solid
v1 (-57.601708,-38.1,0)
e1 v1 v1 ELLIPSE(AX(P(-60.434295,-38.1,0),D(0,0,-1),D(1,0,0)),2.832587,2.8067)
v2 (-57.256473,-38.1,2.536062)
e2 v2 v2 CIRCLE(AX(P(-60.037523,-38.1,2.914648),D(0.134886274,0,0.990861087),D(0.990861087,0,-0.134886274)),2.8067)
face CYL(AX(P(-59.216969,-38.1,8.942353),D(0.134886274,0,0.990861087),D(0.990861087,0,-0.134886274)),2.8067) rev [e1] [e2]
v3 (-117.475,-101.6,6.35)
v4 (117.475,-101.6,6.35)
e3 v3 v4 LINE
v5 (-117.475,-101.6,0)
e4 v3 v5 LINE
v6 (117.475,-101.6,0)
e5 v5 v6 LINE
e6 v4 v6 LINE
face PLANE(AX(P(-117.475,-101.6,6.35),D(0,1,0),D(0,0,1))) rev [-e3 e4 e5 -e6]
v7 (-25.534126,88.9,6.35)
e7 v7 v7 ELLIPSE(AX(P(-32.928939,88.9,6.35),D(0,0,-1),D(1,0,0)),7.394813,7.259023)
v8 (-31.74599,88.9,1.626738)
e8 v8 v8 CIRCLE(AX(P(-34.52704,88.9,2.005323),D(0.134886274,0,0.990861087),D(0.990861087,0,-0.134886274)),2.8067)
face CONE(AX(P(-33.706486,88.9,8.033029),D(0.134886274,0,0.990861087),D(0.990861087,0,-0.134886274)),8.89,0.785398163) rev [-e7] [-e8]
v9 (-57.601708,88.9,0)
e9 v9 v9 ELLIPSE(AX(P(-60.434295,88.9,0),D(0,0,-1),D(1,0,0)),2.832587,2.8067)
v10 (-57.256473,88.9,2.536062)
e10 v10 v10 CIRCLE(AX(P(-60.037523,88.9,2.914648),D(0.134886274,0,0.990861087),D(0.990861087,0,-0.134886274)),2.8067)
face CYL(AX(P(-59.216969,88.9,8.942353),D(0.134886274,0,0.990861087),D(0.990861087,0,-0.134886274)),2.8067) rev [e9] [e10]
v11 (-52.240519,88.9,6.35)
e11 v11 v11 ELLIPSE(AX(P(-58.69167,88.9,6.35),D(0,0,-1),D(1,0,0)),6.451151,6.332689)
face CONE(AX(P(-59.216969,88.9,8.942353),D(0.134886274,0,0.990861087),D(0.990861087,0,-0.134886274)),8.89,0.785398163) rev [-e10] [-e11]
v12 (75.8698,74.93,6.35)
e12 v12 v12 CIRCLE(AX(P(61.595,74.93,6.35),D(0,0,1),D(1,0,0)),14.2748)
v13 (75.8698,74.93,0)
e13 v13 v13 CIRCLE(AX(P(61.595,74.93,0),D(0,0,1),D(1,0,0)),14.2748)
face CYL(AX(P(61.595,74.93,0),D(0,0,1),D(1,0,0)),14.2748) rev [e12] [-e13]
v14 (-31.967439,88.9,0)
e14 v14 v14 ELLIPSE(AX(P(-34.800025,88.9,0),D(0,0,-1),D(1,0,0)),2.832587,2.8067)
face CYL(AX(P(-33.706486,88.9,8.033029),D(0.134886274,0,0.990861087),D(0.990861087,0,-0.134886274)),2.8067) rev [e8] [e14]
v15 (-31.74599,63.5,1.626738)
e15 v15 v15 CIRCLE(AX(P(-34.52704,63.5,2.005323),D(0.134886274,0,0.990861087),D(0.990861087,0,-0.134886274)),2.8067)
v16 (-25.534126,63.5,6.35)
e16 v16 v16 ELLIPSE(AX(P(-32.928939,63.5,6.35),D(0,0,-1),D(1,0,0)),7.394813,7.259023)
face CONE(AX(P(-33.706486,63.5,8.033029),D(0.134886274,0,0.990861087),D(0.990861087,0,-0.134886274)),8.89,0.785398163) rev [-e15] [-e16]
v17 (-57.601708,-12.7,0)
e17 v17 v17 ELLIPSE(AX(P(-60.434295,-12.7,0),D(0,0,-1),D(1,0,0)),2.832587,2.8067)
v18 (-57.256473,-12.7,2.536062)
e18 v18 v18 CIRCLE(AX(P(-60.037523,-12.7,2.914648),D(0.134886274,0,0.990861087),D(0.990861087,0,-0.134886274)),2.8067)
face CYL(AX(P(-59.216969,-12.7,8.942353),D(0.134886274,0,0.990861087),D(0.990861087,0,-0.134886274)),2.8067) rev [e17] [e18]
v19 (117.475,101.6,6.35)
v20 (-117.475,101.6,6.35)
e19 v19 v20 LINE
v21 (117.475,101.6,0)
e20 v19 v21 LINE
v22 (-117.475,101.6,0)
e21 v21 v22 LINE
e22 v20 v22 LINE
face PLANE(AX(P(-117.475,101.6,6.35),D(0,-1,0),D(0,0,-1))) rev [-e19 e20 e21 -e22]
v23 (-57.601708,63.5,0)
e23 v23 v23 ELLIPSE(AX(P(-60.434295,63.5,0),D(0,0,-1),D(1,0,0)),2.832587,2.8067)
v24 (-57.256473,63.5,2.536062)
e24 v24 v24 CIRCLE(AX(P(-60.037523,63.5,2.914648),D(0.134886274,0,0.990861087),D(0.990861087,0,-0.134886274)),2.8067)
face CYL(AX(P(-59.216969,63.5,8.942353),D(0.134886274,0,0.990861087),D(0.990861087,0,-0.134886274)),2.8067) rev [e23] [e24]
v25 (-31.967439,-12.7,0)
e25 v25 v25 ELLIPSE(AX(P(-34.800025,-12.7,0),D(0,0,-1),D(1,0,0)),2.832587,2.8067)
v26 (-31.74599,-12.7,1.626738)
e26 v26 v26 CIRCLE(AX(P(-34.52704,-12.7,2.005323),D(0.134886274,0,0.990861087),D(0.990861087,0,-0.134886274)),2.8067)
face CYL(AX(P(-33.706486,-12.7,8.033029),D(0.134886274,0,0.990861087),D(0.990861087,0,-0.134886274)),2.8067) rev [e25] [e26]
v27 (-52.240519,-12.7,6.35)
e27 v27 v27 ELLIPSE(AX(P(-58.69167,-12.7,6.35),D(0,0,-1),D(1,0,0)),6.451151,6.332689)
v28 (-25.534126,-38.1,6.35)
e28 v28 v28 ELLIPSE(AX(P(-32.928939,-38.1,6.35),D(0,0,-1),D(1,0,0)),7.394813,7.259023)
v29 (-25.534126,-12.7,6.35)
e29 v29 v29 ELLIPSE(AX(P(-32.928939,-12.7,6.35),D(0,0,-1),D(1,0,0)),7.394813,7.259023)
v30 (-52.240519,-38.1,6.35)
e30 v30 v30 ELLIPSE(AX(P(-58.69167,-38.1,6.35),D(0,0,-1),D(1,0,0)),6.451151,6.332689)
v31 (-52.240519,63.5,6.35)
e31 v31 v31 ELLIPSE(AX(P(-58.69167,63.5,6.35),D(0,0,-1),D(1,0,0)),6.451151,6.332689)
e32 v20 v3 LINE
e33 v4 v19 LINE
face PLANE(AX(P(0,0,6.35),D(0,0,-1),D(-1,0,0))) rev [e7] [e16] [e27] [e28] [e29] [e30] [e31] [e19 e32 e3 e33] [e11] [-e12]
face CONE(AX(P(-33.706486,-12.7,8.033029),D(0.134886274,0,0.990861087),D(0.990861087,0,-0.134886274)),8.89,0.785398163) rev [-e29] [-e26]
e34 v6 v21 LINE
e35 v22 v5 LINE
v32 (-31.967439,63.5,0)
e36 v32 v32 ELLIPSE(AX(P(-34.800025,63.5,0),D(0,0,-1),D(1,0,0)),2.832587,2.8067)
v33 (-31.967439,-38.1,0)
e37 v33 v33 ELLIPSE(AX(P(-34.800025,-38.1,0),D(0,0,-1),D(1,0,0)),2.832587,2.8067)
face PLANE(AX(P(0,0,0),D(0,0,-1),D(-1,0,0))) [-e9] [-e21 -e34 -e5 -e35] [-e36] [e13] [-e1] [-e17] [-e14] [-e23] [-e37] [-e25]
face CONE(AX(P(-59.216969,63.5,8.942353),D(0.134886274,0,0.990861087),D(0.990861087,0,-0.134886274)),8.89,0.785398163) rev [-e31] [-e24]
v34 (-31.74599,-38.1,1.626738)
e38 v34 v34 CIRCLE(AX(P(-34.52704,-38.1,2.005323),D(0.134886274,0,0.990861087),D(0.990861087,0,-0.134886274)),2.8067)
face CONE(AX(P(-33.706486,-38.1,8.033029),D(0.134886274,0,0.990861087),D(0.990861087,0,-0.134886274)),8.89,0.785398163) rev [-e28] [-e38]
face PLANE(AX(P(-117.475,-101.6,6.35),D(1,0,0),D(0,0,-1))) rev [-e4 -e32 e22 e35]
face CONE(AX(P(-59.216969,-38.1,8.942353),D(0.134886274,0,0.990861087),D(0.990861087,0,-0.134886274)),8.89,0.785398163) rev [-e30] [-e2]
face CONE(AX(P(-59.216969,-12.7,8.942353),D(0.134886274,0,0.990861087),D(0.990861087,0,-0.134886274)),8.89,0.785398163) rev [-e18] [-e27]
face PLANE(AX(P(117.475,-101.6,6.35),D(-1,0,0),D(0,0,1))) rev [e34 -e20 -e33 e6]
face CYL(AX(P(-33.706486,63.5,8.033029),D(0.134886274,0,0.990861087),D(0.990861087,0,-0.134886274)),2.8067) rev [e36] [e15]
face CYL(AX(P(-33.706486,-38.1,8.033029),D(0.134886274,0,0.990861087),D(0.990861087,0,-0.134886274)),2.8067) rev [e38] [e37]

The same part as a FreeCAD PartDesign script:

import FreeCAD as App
import Part
import Sketcher
from FreeCAD import Vector
Q = App.Units.Quantity


def add_polygon(sketch, points):
    """Adds a closed chain of lines whose ends are joined by coincident constraints."""
    first, n = sketch.GeometryCount, len(points)
    for a, b in zip(points, points[1:] + points[:1]):
        sketch.addGeometry(Part.LineSegment(App.Vector(*a, 0), App.Vector(*b, 0)), False)
    for i in range(n):
        sketch.addConstraint(Sketcher.Constraint("Coincident", first + i, 2, first + (i + 1) % n, 1))

doc = App.newDocument("Part")
body = doc.addObject("PartDesign::Body", "Body")

# Sketch on XY plane
sketch1 = body.newObject("Sketcher::SketchObject", "Sketch")
sketch1.AttachmentSupport = (doc.getObject("XY_Plane"), [""])
sketch1.MapMode = "FlatFace"
add_polygon(sketch1, [(-117, 102), (-117, -102), (117, -102), (117, 102)])  # lines 0-3
sketch1.addConstraint(Sketcher.Constraint("Vertical", 0))
sketch1.addConstraint(Sketcher.Constraint("Horizontal", 1))
sketch1.addConstraint(Sketcher.Constraint("Vertical", 2))
sketch1.addConstraint(Sketcher.Constraint("Horizontal", 3))
sketch1.addConstraint(Sketcher.Constraint("Symmetric", 0, 2, 2, 2, -1, 1))
sketch1.addConstraint(Sketcher.Constraint("DistanceY", 0, 2, 0, 1, Q("8 in")))
sketch1.addConstraint(Sketcher.Constraint("DistanceX", 1, 1, 1, 2, Q("9.25 in")))
pad1 = body.newObject("PartDesign::Pad", "Pad")
pad1.Profile = sketch1
pad1.Length = Q("0.25 in")

# Sketch on XY plane
sketch2 = body.newObject("Sketcher::SketchObject", "Sketch001")
sketch2.AttachmentSupport = (doc.getObject("XY_Plane"), [""])
sketch2.MapMode = "FlatFace"
sketch2.AttachmentOffset = App.Placement(Vector(0, 0, 0.25 * 25.4), App.Rotation())
sketch2.addGeometry(Part.Circle(Vector(62, 75, 0), Vector(0, 0, 1), 14), False)
sketch2.addConstraint(Sketcher.Constraint("Diameter", 0, Q("1.124 in")))
sketch2.addConstraint(Sketcher.Constraint("DistanceY", -1, 1, 0, 3, Q("2.95 in")))
sketch2.addConstraint(Sketcher.Constraint("DistanceX", -1, 1, 0, 3, Q("2.425 in")))
pocket1 = body.newObject("PartDesign::Pocket", "Pocket")
pocket1.Profile = sketch2
pocket1.Type = "ThroughAll"

# Sketch on an angled plane
sketch3 = body.newObject("Sketcher::SketchObject", "Sketch002")
sketch3.Placement = App.Placement(Vector(0.117766, 0, 0.865094), App.Rotation(Vector(-0.990861087, 0, 0.134886274), Vector(0, -1.000000001, 0), Vector(0.134886274, 0, 0.990861087), "ZXY"))
sketch3.addGeometry(Part.Circle(Vector(59.9, 38.1, 0), Vector(0, 0, 1), 2.8), False)
sketch3.addGeometry(Part.Circle(Vector(59.9, 12.7, 0), Vector(0, 0, 1), 2.8), False)
sketch3.addGeometry(Part.Circle(Vector(59.9, -63.5, 0), Vector(0, 0, 1), 2.8), False)
sketch3.addGeometry(Part.Circle(Vector(59.9, -88.9, 0), Vector(0, 0, 1), 2.8), False)
sketch3.addConstraint(Sketcher.Constraint("Equal", 0, 1))
sketch3.addConstraint(Sketcher.Constraint("Equal", 1, 2))
sketch3.addConstraint(Sketcher.Constraint("Equal", 2, 3))
sketch3.addConstraint(Sketcher.Constraint("Vertical", 0, 3, 1, 3))
sketch3.addConstraint(Sketcher.Constraint("Vertical", 1, 3, 2, 3))
sketch3.addConstraint(Sketcher.Constraint("Vertical", 2, 3, 3, 3))
sketch3.addConstraint(Sketcher.Constraint("Diameter", 0, Q("0.221 in")))
sketch3.addConstraint(Sketcher.Constraint("DistanceY", 1, 3, 0, 3, Q("1 in")))
sketch3.addConstraint(Sketcher.Constraint("DistanceY", 2, 3, 1, 3, Q("3 in")))
sketch3.addConstraint(Sketcher.Constraint("DistanceY", 3, 3, 2, 3, Q("1 in")))
sketch3.addConstraint(Sketcher.Constraint("DistanceY", -1, 1, 0, 3, Q("1.5 in")))
sketch3.addConstraint(Sketcher.Constraint("DistanceX", -1, 1, 0, 3, 59.881991))
doc.recompute()
hole = body.newObject("PartDesign::Hole", "Hole")
hole.Profile = sketch3
hole.ThreadType = "None"
hole.Diameter = Q("0.221 in")
hole.DepthType = "ThroughAll"
hole.HoleCutType = "Countersink"
hole.HoleCutDiameter = Q("0.7 in")
hole.HoleCutCountersinkAngle = 90

# Sketch on an angled plane
sketch4 = body.newObject("Sketcher::SketchObject", "Sketch003")
sketch4.Placement = App.Placement(Vector(0.460377, 0, 3.381881), App.Rotation(Vector(-0.990861087, 0, 0.134886274), Vector(0, -1.000000001, 0), Vector(0.134886274, 0, 0.990861087), "ZXY"))
sketch4.addGeometry(Part.Circle(Vector(34.5, 12.7, 0), Vector(0, 0, 1), 2.8), False)
sketch4.addGeometry(Part.Circle(Vector(34.5, 38.1, 0), Vector(0, 0, 1), 2.8), False)
sketch4.addGeometry(Part.Circle(Vector(34.5, -63.5, 0), Vector(0, 0, 1), 2.8), False)
sketch4.addGeometry(Part.Circle(Vector(34.5, -88.9, 0), Vector(0, 0, 1), 2.8), False)
sketch4.addConstraint(Sketcher.Constraint("Equal", 0, 1))
sketch4.addConstraint(Sketcher.Constraint("Equal", 1, 2))
sketch4.addConstraint(Sketcher.Constraint("Equal", 2, 3))
sketch4.addConstraint(Sketcher.Constraint("Vertical", 0, 3, 1, 3))
sketch4.addConstraint(Sketcher.Constraint("Vertical", 1, 3, 2, 3))
sketch4.addConstraint(Sketcher.Constraint("Vertical", 2, 3, 3, 3))
sketch4.addConstraint(Sketcher.Constraint("Diameter", 0, Q("0.221 in")))
sketch4.addConstraint(Sketcher.Constraint("DistanceY", 0, 3, 1, 3, Q("1 in")))
sketch4.addConstraint(Sketcher.Constraint("DistanceY", 2, 3, 0, 3, Q("3 in")))
sketch4.addConstraint(Sketcher.Constraint("DistanceY", 3, 3, 2, 3, Q("1 in")))
sketch4.addConstraint(Sketcher.Constraint("DistanceY", -1, 1, 0, 3, Q("0.5 in")))
sketch4.addConstraint(Sketcher.Constraint("DistanceX", -1, 1, 0, 3, 34.481991))
doc.recompute()
hole2 = body.newObject("PartDesign::Hole", "Hole001")
hole2.Profile = sketch4
hole2.ThreadType = "None"
hole2.Diameter = Q("0.221 in")
hole2.DepthType = "ThroughAll"
hole2.HoleCutType = "Countersink"
hole2.HoleCutDiameter = Q("0.7 in")
hole2.HoleCutCountersinkAngle = 90

doc.recompute()
